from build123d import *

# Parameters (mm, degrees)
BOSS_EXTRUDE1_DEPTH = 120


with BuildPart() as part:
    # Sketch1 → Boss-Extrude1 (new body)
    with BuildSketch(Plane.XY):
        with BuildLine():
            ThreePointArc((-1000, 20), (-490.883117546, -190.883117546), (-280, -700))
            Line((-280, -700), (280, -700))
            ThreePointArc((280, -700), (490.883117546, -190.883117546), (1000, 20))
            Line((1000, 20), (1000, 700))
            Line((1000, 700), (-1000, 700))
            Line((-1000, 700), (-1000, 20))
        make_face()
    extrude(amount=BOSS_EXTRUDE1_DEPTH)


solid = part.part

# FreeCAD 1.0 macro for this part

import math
import FreeCAD as App
import Part
import Sketcher

V = App.Vector

doc = App.newDocument("Part")
body = doc.addObject("PartDesign::Body", "Body")

# Sketch on XY plane
sketch1 = doc.addObject("Sketcher::SketchObject", "Sketch")
body.addObject(sketch1)
sketch1.AttachmentSupport = (doc.XY_Plane, [""])
sketch1.MapMode = "FlatFace"
sketch1.addGeometry([
    Part.ArcOfCircle(Part.Circle(V(-1000, -700, 0), V(0, 0, 1), 720), math.radians(0), math.radians(90)),  # 0
    Part.LineSegment(V(-280, -700, 0), V(280, -700, 0)),  # 1
    Part.ArcOfCircle(Part.Circle(V(1000, -700, 0), V(0, 0, 1), 720), math.radians(90), math.radians(180)),  # 2
    Part.LineSegment(V(1000, 20, 0), V(1000, 700, 0)),  # 3
    Part.LineSegment(V(1000, 700, 0), V(-1000, 700, 0)),  # 4
    Part.LineSegment(V(-1000, 700, 0), V(-1000, 20, 0)),  # 5
], False)
sketch1.addConstraint([
    Sketcher.Constraint("Coincident", 0, 1, 1, 1),
    Sketcher.Constraint("Coincident", 1, 2, 2, 2),
    Sketcher.Constraint("Coincident", 2, 1, 3, 1),
    Sketcher.Constraint("Coincident", 3, 2, 4, 1),
    Sketcher.Constraint("Coincident", 4, 2, 5, 1),
    Sketcher.Constraint("Coincident", 5, 2, 0, 2),
    Sketcher.Constraint("Horizontal", 1),
    Sketcher.Constraint("Vertical", 3),
    Sketcher.Constraint("Horizontal", 4),
    Sketcher.Constraint("Vertical", 5),
    Sketcher.Constraint("Equal", 0, 2),
    Sketcher.Constraint("Symmetric", 0, 3, 2, 3, -2),
    Sketcher.Constraint("Vertical", 0, 3, 4, 2),
    Sketcher.Constraint("Radius", 0, 720.0),
    Sketcher.Constraint("DistanceX", 1, 1, 1, 2, 560.0),
    Sketcher.Constraint("DistanceX", 4, 2, 4, 1, 2000.0),
    Sketcher.Constraint("DistanceY", 3, 1, 3, 2, 680.0),
    Sketcher.Constraint("DistanceY", 0, 3, -1, 1, 700.0),
    Sketcher.Constraint("DistanceY", 1, 2, -1, 1, 700.0),
])
pad1 = doc.addObject("PartDesign::Pad", "Pad")
body.addObject(pad1)
pad1.Profile = sketch1
pad1.Length = 120

doc.recompute()
